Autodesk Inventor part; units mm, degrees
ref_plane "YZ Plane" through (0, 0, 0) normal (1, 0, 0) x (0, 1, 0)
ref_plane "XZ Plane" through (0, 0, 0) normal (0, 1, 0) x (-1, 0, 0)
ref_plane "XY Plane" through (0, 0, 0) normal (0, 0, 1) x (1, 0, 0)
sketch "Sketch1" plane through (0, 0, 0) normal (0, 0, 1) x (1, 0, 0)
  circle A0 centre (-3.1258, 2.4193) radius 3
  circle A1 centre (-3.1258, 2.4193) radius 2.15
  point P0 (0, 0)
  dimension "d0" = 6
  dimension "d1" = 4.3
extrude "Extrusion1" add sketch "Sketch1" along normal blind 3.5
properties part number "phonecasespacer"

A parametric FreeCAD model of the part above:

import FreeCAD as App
import Part
import Sketcher
from FreeCAD import Vector

doc = App.newDocument("Part")
body = doc.addObject("PartDesign::Body", "Body")

# Sketch on XY plane
sketch1 = body.newObject("Sketcher::SketchObject", "Sketch")
sketch1.AttachmentSupport = (doc.getObject("XY_Plane"), [""])
sketch1.MapMode = "FlatFace"
sketch1.addGeometry(Part.Circle(Vector(-3.1258, 2.4193, 0), Vector(0, 0, 1), 3), False)
sketch1.addGeometry(Part.Circle(Vector(-3.1258, 2.4193, 0), Vector(0, 0, 1), 2.15), False)
sketch1.addConstraint(Sketcher.Constraint("Coincident", 1, 3, 0, 3))
sketch1.addConstraint(Sketcher.Constraint("Diameter", 0, 6.0))
sketch1.addConstraint(Sketcher.Constraint("Diameter", 1, 4.3))
sketch1.addConstraint(Sketcher.Constraint("DistanceX", 0, 3, -1, 1, 3.1258))
sketch1.addConstraint(Sketcher.Constraint("DistanceY", -1, 1, 0, 3, 2.4193))
pad1 = body.newObject("PartDesign::Pad", "Pad")
pad1.Profile = sketch1
pad1.Length = 3.5

doc.recompute()
